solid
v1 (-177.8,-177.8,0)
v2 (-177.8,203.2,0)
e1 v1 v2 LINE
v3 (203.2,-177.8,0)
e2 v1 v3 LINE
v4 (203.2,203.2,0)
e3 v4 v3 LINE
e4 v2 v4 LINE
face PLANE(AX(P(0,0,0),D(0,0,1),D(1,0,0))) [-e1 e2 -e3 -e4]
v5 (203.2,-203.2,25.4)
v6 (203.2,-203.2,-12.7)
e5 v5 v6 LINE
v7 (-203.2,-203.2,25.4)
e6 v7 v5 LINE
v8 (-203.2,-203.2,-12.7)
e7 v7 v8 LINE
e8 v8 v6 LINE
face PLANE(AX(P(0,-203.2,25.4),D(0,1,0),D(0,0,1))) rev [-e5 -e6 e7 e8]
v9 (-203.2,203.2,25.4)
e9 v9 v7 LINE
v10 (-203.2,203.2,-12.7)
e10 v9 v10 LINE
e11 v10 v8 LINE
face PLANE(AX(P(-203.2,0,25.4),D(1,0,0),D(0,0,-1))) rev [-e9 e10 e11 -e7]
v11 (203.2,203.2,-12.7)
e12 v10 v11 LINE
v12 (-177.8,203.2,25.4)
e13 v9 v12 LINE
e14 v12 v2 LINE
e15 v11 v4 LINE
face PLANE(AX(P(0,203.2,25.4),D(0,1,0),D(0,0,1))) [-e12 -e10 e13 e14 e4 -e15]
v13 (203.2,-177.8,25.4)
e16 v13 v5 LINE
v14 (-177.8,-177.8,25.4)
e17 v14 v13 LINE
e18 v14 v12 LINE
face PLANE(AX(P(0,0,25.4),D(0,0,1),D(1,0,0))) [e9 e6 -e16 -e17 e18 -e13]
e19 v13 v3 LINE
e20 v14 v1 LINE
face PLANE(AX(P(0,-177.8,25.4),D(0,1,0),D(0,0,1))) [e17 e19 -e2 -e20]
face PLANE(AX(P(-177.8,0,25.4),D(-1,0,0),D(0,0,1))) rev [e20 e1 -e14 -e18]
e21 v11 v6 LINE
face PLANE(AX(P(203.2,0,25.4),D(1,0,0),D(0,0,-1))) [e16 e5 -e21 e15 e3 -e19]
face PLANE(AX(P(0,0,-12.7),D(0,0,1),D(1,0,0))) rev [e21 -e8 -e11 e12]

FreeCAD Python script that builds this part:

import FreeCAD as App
import Part
import Sketcher
from FreeCAD import Vector
Q = App.Units.Quantity


def add_polygon(sketch, points):
    """Adds a closed chain of lines whose ends are joined by coincident constraints."""
    first, n = sketch.GeometryCount, len(points)
    for a, b in zip(points, points[1:] + points[:1]):
        sketch.addGeometry(Part.LineSegment(App.Vector(*a, 0), App.Vector(*b, 0)), False)
    for i in range(n):
        sketch.addConstraint(Sketcher.Constraint("Coincident", first + i, 2, first + (i + 1) % n, 1))

doc = App.newDocument("Part")
params = doc.addObject("Spreadsheet::Sheet", "Params")
for row, (alias, value) in enumerate([
    ("sketch1_width", "1 in"),
    ("sketch1_width2", "16 in"),
    ("pad1_length", "1 in"),
    ("sketch2_width", "16 in"),
    ("pad2_length", "0.5 in"),
], start=1):
    params.set(f"A{row}", alias)
    params.set(f"B{row}", "=" + value)
    params.setAlias(f"B{row}", alias)

body = doc.addObject("PartDesign::Body", "Body")

sketch1 = doc.addObject("Sketcher::SketchObject", "Sketch")
body.addObject(sketch1)
sketch1.AttachmentSupport = (doc.XY_Plane, [""])
sketch1.MapMode = "FlatFace"
add_polygon(sketch1, [(-178, -178), (-178, 203), (-203, 203), (-203, -203), (203, -203), (203, -178)])
sketch1.addConstraint([
    Sketcher.Constraint("Vertical", 0),
    Sketcher.Constraint("Horizontal", 1),
    Sketcher.Constraint("Vertical", 2),
    Sketcher.Constraint("Horizontal", 3),
    Sketcher.Constraint("Vertical", 4),
    Sketcher.Constraint("Horizontal", 5),
    Sketcher.Constraint("Symmetric", 1, 2, 3, 2, -1, 1),
    Sketcher.Constraint("Equal", 5, 0),
    Sketcher.Constraint("Equal", 3, 2),
    Sketcher.Constraint("DistanceX", 1, 2, 1, 1, Q("1 in")),
    Sketcher.Constraint("DistanceX", 3, 1, 3, 2, Q("16 in")),
])
sketch1.setExpression("Constraints[15]", "Params.sketch1_width")
sketch1.setExpression("Constraints[16]", "Params.sketch1_width2")
pad1 = doc.addObject("PartDesign::Pad", "Pad")
body.addObject(pad1)
pad1.Profile = sketch1
pad1.setExpression("Length", "Params.pad1_length")

sketch2 = doc.addObject("Sketcher::SketchObject", "Sketch001")
body.addObject(sketch2)
sketch2.AttachmentSupport = (doc.XY_Plane, [""])
sketch2.MapMode = "FlatFace"
add_polygon(sketch2, [(203, 203), (-203, 203), (-203, -203), (203, -203)])
sketch2.addConstraint([
    Sketcher.Constraint("Horizontal", 0),
    Sketcher.Constraint("Vertical", 1),
    Sketcher.Constraint("Horizontal", 2),
    Sketcher.Constraint("Vertical", 3),
    Sketcher.Constraint("Symmetric", 0, 2, 2, 2, -1, 1),
    Sketcher.Constraint("Equal", 2, 1),
    Sketcher.Constraint("DistanceX", 0, 2, 0, 1, Q("16 in")),
])
sketch2.setExpression("Constraints[10]", "Params.sketch2_width")
pad2 = doc.addObject("PartDesign::Pad", "Pad001")
body.addObject(pad2)
pad2.Profile = sketch2
pad2.setExpression("Length", "Params.pad2_length")
pad2.Reversed = True

doc.recompute()
